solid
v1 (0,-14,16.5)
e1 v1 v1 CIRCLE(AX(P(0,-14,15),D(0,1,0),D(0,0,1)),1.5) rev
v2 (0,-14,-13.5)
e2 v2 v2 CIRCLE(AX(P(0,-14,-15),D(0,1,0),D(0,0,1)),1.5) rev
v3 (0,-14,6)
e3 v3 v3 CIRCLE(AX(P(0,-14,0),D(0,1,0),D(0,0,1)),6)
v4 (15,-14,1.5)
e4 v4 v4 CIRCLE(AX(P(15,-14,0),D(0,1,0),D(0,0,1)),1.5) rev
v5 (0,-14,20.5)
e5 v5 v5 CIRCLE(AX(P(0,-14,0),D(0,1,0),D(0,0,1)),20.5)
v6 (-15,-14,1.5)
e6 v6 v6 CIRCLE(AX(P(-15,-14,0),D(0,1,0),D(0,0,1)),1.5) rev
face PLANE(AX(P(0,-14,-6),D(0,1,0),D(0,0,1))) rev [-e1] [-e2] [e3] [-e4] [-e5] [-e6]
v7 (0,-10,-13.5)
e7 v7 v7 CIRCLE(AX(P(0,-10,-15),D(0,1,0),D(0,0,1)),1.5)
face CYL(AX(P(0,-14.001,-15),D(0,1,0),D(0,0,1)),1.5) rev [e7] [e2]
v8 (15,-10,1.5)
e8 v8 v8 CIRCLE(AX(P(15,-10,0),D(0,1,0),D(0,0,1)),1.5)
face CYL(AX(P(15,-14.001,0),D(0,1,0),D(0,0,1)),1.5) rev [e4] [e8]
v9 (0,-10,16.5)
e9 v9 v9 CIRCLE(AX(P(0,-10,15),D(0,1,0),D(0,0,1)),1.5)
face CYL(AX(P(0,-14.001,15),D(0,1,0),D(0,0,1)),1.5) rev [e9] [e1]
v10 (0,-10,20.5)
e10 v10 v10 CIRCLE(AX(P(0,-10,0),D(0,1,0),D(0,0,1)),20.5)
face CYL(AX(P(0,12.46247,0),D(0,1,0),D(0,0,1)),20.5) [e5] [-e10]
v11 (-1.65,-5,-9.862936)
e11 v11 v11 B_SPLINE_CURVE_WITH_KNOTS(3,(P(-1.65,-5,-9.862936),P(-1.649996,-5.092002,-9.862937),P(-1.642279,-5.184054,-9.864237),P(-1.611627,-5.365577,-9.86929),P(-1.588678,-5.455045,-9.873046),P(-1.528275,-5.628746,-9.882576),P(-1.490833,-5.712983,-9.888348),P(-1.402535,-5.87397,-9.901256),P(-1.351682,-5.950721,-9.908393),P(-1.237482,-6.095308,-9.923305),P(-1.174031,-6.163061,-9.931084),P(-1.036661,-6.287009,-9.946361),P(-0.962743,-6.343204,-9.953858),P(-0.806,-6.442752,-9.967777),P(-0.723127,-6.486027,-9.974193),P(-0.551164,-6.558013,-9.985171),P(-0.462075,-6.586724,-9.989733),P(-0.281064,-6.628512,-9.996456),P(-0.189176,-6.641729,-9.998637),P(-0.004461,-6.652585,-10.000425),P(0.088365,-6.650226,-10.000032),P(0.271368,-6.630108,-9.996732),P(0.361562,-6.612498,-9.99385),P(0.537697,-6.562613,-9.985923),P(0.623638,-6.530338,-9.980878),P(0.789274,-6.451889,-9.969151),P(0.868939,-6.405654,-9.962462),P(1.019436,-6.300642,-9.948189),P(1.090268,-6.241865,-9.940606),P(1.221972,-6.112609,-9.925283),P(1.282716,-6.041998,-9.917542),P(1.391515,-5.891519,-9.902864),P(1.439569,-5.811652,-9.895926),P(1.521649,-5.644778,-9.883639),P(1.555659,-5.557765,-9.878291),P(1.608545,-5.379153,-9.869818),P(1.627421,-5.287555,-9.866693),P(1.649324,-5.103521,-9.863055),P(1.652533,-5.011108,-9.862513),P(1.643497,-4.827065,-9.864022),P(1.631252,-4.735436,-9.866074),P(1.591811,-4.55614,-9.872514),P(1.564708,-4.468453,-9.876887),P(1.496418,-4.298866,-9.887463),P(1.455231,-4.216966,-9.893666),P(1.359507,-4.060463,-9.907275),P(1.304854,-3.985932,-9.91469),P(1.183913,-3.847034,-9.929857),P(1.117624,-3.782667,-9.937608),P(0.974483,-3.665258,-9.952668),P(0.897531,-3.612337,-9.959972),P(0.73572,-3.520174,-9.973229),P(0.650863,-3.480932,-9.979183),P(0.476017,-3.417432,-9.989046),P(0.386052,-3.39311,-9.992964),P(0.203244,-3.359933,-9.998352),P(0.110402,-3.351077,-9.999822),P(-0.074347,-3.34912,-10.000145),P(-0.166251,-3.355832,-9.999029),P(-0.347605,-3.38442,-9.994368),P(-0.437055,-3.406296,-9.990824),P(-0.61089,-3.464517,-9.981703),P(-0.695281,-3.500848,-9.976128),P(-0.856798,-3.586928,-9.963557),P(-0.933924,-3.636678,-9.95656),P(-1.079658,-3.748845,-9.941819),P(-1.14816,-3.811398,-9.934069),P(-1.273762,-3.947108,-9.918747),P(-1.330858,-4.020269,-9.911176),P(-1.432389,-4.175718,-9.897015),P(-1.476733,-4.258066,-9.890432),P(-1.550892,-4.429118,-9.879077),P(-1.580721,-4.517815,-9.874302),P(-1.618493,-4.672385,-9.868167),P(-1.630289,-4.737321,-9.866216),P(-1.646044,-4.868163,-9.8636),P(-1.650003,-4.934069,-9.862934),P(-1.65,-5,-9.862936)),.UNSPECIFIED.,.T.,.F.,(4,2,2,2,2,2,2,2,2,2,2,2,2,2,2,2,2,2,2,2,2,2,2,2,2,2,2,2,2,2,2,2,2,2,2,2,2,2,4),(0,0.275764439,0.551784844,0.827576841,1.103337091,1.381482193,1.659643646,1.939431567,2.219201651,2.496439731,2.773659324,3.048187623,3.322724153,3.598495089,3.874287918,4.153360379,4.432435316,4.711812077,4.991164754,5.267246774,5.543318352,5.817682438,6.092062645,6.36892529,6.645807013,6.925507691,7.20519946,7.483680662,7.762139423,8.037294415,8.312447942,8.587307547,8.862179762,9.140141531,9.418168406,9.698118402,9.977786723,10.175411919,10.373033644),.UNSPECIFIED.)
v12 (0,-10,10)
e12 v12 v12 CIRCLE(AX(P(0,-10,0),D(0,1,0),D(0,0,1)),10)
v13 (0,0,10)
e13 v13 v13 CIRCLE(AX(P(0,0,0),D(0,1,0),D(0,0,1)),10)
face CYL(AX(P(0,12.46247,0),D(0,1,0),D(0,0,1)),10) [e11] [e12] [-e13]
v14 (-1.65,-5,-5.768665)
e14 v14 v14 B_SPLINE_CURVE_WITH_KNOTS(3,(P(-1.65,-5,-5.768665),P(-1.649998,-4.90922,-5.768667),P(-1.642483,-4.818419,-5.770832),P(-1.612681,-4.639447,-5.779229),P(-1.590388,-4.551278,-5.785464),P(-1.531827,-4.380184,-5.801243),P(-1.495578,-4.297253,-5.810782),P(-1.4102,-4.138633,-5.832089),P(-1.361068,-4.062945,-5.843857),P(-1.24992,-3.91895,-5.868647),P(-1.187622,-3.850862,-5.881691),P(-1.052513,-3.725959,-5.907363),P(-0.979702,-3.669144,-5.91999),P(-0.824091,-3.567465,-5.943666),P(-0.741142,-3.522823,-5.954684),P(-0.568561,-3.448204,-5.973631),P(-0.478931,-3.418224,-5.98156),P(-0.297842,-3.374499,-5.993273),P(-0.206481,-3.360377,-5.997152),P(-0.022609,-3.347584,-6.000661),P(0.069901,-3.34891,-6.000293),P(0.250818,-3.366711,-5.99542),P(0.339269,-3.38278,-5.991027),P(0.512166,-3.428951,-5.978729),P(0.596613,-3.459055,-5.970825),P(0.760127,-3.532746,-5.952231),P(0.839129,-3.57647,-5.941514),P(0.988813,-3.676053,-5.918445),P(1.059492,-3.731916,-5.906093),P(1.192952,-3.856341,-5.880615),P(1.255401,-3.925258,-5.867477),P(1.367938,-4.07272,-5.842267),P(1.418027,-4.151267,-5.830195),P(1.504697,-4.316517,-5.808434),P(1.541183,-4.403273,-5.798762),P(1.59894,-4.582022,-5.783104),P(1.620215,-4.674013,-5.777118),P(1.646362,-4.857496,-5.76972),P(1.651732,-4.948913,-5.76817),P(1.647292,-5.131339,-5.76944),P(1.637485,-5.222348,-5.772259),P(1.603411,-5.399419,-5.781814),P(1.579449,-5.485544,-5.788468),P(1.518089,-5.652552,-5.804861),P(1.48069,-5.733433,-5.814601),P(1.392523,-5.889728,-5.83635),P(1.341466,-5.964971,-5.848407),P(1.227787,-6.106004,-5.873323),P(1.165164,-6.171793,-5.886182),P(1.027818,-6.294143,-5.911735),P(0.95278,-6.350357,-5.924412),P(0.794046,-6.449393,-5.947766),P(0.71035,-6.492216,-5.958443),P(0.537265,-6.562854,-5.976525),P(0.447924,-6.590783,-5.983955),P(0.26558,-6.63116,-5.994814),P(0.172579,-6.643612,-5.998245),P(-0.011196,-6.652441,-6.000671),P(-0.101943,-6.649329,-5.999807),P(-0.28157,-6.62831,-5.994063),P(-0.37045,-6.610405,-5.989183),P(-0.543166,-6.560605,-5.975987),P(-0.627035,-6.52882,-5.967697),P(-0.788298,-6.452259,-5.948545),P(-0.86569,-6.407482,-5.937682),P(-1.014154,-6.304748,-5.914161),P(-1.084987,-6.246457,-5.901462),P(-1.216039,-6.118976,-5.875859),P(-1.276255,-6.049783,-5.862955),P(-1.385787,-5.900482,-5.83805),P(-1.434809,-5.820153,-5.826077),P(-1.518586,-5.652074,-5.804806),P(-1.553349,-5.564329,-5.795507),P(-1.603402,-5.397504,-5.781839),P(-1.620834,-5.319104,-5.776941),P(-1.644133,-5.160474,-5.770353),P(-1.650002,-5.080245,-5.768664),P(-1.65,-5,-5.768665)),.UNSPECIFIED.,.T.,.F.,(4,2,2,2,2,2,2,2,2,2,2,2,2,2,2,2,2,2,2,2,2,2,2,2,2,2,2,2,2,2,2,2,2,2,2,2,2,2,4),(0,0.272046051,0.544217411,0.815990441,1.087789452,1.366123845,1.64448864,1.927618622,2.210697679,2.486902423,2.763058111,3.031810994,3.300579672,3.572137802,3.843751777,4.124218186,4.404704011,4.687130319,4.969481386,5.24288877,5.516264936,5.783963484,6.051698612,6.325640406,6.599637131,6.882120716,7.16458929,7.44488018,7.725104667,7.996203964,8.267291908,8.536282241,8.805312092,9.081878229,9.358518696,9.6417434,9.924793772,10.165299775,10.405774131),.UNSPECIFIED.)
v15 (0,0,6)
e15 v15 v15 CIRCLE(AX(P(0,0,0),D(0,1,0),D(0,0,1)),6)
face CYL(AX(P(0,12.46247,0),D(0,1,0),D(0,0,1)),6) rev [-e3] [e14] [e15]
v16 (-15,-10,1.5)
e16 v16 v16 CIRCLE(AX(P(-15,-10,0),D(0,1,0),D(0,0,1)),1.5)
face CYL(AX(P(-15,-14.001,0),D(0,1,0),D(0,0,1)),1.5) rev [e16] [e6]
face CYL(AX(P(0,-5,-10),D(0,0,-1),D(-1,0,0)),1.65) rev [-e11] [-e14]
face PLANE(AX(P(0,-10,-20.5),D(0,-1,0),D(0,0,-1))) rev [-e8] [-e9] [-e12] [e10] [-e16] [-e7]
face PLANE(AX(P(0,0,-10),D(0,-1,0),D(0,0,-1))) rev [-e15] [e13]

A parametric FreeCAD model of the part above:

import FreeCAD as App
import Part
import Sketcher

doc = App.newDocument("Part")
body = doc.addObject("PartDesign::Body", "Body")

sketch1 = body.newObject("Sketcher::SketchObject", "Sketch")
sketch1.AttachmentSupport = (doc.getObject("YZ_Plane"), [""])
sketch1.MapMode = "FlatFace"
sketch1.addGeometry(Part.LineSegment(App.Vector(0, -6, 0), App.Vector(-14, -6, 0)), False)
sketch1.addGeometry(Part.LineSegment(App.Vector(-14, -6, 0), App.Vector(-14, -20.5, 0)), False)
sketch1.addGeometry(Part.LineSegment(App.Vector(-14, -20.5, 0), App.Vector(-10, -20.5, 0)), False)
sketch1.addGeometry(Part.LineSegment(App.Vector(-10, -20.5, 0), App.Vector(-10, -10, 0)), False)
sketch1.addGeometry(Part.LineSegment(App.Vector(-10, -10, 0), App.Vector(0, -10, 0)), False)
sketch1.addGeometry(Part.LineSegment(App.Vector(0, -10, 0), App.Vector(0, -6, 0)), False)
sketch1.addConstraint(Sketcher.Constraint("Coincident", 0, 2, 1, 1))
sketch1.addConstraint(Sketcher.Constraint("Coincident", 1, 2, 2, 1))
sketch1.addConstraint(Sketcher.Constraint("Coincident", 2, 2, 3, 1))
sketch1.addConstraint(Sketcher.Constraint("Coincident", 3, 2, 4, 1))
sketch1.addConstraint(Sketcher.Constraint("Coincident", 4, 2, 5, 1))
sketch1.addConstraint(Sketcher.Constraint("Coincident", 5, 2, 0, 1))
sketch1.addConstraint(Sketcher.Constraint("Horizontal", 0))
sketch1.addConstraint(Sketcher.Constraint("Vertical", 1))
sketch1.addConstraint(Sketcher.Constraint("Horizontal", 2))
sketch1.addConstraint(Sketcher.Constraint("Vertical", 3))
sketch1.addConstraint(Sketcher.Constraint("Horizontal", 4))
sketch1.addConstraint(Sketcher.Constraint("Vertical", 5))
sketch1.addConstraint(Sketcher.Constraint("PointOnObject", 4, 2, -2))
sketch1.addConstraint(Sketcher.Constraint("Equal", 2, 5))
sketch1.addConstraint(Sketcher.Constraint("DistanceX", 0, 2, 0, 1, 14.0))
sketch1.addConstraint(Sketcher.Constraint("DistanceX", 2, 1, 2, 2, 4.0))
sketch1.addConstraint(Sketcher.Constraint("DistanceY", 1, 2, 1, 1, 14.5))
sketch1.addConstraint(Sketcher.Constraint("DistanceY", 0, 2, -1, 1, 6.0))
revolution = body.newObject("PartDesign::Revolution", "Revolution")
revolution.Profile = sketch1
revolution.ReferenceAxis = (sketch1, ["H_Axis"])
revolution.Angle = 360

sketch2 = body.newObject("Sketcher::SketchObject", "Sketch001")
sketch2.AttachmentSupport = (doc.getObject("XZ_Plane"), [""])
sketch2.MapMode = "FlatFace"
sketch2.AttachmentOffset = App.Placement(App.Vector(0, 0, 10), App.Rotation())
sketch2.addGeometry(Part.Circle(App.Vector(0, -15, 0), App.Vector(0, 0, 1), 1.5), False)
sketch2.addConstraint(Sketcher.Constraint("PointOnObject", 0, 3, -2))
sketch2.addConstraint(Sketcher.Constraint("Diameter", 0, 3.0))
sketch2.addConstraint(Sketcher.Constraint("DistanceY", 0, 3, -1, 1, 15.0))
pocket1 = body.newObject("PartDesign::Pocket", "Pocket")
pocket1.Profile = sketch2
pocket1.Type = "UpToFirst"
pocket1.Reversed = True

sketch3 = body.newObject("Sketcher::SketchObject", "Sketch002")
sketch3.AttachmentSupport = (doc.getObject("XZ_Plane"), [""])
sketch3.MapMode = "FlatFace"
sketch3.AttachmentOffset = App.Placement(App.Vector(0, 0, 10), App.Rotation())
sketch3.addGeometry(Part.Circle(App.Vector(15, 0, 0), App.Vector(0, 0, 1), 1.5), False)
sketch3.addConstraint(Sketcher.Constraint("PointOnObject", 0, 3, -1))
sketch3.addConstraint(Sketcher.Constraint("Diameter", 0, 3.0))
sketch3.addConstraint(Sketcher.Constraint("DistanceX", -1, 1, 0, 3, 15.0))
pocket2 = body.newObject("PartDesign::Pocket", "Pocket001")
pocket2.Profile = sketch3
pocket2.Type = "UpToFirst"
pocket2.Reversed = True

sketch4 = body.newObject("Sketcher::SketchObject", "Sketch003")
sketch4.AttachmentSupport = (doc.getObject("XZ_Plane"), [""])
sketch4.MapMode = "FlatFace"
sketch4.AttachmentOffset = App.Placement(App.Vector(0, 0, 10), App.Rotation())
sketch4.addGeometry(Part.Circle(App.Vector(0, 15, 0), App.Vector(0, 0, 1), 1.5), False)
sketch4.addConstraint(Sketcher.Constraint("PointOnObject", 0, 3, -2))
sketch4.addConstraint(Sketcher.Constraint("Diameter", 0, 3.0))
sketch4.addConstraint(Sketcher.Constraint("DistanceY", -1, 1, 0, 3, 15.0))
pocket3 = body.newObject("PartDesign::Pocket", "Pocket002")
pocket3.Profile = sketch4
pocket3.Type = "UpToFirst"
pocket3.Reversed = True

sketch5 = body.newObject("Sketcher::SketchObject", "Sketch004")
sketch5.AttachmentSupport = (doc.getObject("XZ_Plane"), [""])
sketch5.MapMode = "FlatFace"
sketch5.AttachmentOffset = App.Placement(App.Vector(0, 0, 10), App.Rotation())
sketch5.addGeometry(Part.Circle(App.Vector(-15, 0, 0), App.Vector(0, 0, 1), 1.5), False)
sketch5.addConstraint(Sketcher.Constraint("PointOnObject", 0, 3, -1))
sketch5.addConstraint(Sketcher.Constraint("Diameter", 0, 3.0))
sketch5.addConstraint(Sketcher.Constraint("DistanceX", 0, 3, -1, 1, 15.0))
pocket4 = body.newObject("PartDesign::Pocket", "Pocket003")
pocket4.Profile = sketch5
pocket4.Type = "UpToFirst"
pocket4.Reversed = True

sketch6 = body.newObject("Sketcher::SketchObject", "Sketch005")
sketch6.AttachmentSupport = (doc.getObject("XY_Plane"), [""])
sketch6.MapMode = "FlatFace"
sketch6.AttachmentOffset = App.Placement(App.Vector(0, 0, -10), App.Rotation())
sketch6.addGeometry(Part.Circle(App.Vector(0, -5, 0), App.Vector(0, 0, 1), 1.65), False)
sketch6.addConstraint(Sketcher.Constraint("PointOnObject", 0, 3, -2))
sketch6.addConstraint(Sketcher.Constraint("Diameter", 0, 3.3))
sketch6.addConstraint(Sketcher.Constraint("DistanceY", 0, 3, -1, 1, 5.0))
pocket5 = body.newObject("PartDesign::Pocket", "Pocket004")
pocket5.Profile = sketch6
pocket5.Length = 4.231335
pocket5.Reversed = True

doc.recompute()
